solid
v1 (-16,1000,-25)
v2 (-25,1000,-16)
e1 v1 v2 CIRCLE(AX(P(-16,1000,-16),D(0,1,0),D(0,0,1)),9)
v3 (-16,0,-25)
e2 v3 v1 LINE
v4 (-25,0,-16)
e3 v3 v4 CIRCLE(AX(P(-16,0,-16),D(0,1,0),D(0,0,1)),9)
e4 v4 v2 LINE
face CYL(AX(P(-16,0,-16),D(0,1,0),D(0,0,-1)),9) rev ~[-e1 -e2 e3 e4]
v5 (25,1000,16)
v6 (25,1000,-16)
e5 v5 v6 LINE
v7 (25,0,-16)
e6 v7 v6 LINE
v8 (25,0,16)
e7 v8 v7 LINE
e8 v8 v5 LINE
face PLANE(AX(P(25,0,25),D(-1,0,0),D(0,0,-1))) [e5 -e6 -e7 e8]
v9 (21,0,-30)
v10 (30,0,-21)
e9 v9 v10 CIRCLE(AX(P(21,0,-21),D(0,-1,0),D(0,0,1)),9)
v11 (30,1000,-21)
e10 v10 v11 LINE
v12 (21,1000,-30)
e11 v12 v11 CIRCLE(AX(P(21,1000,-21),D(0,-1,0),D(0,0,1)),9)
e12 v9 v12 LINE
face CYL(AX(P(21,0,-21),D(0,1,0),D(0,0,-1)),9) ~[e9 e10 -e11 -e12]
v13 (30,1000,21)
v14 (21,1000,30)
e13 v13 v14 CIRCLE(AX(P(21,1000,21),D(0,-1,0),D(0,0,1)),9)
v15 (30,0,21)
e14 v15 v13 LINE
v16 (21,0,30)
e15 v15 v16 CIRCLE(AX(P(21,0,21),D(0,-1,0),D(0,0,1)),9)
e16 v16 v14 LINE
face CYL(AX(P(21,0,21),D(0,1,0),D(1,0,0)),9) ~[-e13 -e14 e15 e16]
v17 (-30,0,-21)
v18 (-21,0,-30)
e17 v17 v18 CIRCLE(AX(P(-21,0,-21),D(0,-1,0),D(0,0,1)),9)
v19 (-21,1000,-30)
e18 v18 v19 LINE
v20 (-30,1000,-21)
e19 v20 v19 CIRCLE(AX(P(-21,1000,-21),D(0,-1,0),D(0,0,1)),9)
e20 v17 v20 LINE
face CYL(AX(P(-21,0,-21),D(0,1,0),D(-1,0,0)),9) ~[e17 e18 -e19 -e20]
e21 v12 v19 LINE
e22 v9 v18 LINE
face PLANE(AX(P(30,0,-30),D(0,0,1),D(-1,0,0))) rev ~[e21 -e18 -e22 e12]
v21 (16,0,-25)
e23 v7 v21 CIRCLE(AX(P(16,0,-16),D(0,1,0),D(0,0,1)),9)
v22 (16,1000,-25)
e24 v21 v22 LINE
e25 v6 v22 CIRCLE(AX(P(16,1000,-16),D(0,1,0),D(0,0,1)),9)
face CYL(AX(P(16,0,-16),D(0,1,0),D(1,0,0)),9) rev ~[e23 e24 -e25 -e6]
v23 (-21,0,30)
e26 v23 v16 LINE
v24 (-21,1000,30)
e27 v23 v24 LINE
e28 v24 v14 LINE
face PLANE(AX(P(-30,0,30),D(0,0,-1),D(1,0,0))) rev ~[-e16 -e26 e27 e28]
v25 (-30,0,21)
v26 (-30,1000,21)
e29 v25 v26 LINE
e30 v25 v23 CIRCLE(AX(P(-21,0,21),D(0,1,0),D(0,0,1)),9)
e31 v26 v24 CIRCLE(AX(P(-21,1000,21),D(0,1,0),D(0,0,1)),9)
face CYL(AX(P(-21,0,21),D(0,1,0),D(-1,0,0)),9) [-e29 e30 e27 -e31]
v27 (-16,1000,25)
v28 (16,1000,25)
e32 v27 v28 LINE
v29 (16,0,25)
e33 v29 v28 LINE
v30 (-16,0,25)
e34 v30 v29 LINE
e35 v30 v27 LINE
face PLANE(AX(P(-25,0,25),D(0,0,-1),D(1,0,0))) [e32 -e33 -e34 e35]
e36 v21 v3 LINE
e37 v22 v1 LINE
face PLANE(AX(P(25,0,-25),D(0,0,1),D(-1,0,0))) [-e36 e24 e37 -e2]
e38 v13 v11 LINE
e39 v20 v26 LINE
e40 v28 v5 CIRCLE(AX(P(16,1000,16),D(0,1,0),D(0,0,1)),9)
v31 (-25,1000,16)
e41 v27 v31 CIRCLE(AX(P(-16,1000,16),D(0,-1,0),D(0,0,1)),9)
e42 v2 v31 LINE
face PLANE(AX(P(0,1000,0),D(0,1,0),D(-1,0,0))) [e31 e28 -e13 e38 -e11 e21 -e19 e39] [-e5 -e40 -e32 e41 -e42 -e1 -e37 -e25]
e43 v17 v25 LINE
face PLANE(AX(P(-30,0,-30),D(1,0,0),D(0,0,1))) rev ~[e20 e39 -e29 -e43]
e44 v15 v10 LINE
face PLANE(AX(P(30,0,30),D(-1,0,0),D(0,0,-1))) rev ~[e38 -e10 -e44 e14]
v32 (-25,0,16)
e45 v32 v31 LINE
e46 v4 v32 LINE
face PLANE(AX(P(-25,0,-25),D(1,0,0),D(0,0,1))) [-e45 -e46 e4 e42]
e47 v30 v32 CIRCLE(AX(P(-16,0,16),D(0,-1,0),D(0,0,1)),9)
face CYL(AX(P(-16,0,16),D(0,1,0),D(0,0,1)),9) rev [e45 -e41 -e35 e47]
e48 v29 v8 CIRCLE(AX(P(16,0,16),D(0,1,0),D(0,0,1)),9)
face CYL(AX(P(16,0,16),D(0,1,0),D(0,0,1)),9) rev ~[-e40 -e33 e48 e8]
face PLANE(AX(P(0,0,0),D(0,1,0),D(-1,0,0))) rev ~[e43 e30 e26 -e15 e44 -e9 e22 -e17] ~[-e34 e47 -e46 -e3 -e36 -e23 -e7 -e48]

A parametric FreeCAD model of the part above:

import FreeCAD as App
import Part
import Sketcher


def edges_at(feature, points):
    """Names of the edges that pass closest to the given points."""
    edges = feature.Shape.Edges
    near = lambda p: min(range(len(edges)), key=lambda i: edges[i].distToShape(Part.Vertex(*p))[0])
    return sorted({f"Edge{near(p) + 1}" for p in points})

doc = App.newDocument("Part")
body = doc.addObject("PartDesign::Body", "Body")

# Sketch on XZ plane
sketch1 = doc.addObject("Sketcher::SketchObject", "Sketch")
body.addObject(sketch1)
sketch1.AttachmentSupport = (doc.XZ_Plane, [""])
sketch1.MapMode = "FlatFace"
sketch1.addGeometry([
    Part.LineSegment(App.Vector(-30, -30, 0), App.Vector(-30, 30, 0)),  # 0
    Part.LineSegment(App.Vector(-30, 30, 0), App.Vector(30, 30, 0)),  # 1
    Part.LineSegment(App.Vector(30, 30, 0), App.Vector(30, -30, 0)),  # 2
    Part.LineSegment(App.Vector(30, -30, 0), App.Vector(-30, -30, 0)),  # 3
    Part.LineSegment(App.Vector(25, 25, 0), App.Vector(-25, 25, 0)),  # 4
    Part.LineSegment(App.Vector(-25, 25, 0), App.Vector(-25, -25, 0)),  # 5
    Part.LineSegment(App.Vector(-25, -25, 0), App.Vector(25, -25, 0)),  # 6
    Part.LineSegment(App.Vector(25, -25, 0), App.Vector(25, 25, 0)),  # 7
], False)
sketch1.addConstraint([
    Sketcher.Constraint("Coincident", 0, 2, 1, 1),
    Sketcher.Constraint("Coincident", 1, 2, 2, 1),
    Sketcher.Constraint("Coincident", 2, 2, 3, 1),
    Sketcher.Constraint("Coincident", 3, 2, 0, 1),
    Sketcher.Constraint("Coincident", 4, 2, 5, 1),
    Sketcher.Constraint("Coincident", 5, 2, 6, 1),
    Sketcher.Constraint("Coincident", 6, 2, 7, 1),
    Sketcher.Constraint("Coincident", 7, 2, 4, 1),
    Sketcher.Constraint("Vertical", 0),
    Sketcher.Constraint("Horizontal", 1),
    Sketcher.Constraint("Vertical", 2),
    Sketcher.Constraint("Horizontal", 3),
    Sketcher.Constraint("Horizontal", 4),
    Sketcher.Constraint("Vertical", 5),
    Sketcher.Constraint("Horizontal", 6),
    Sketcher.Constraint("Vertical", 7),
    Sketcher.Constraint("Symmetric", 0, 2, 2, 2, -1, 1),
    Sketcher.Constraint("Symmetric", 4, 2, 6, 2, -1, 1),
    Sketcher.Constraint("Equal", 3, 0),
    Sketcher.Constraint("Equal", 6, 5),
    Sketcher.Constraint("DistanceX", 1, 1, 1, 2, 60.0),
    Sketcher.Constraint("DistanceX", 0, 2, 4, 2, 5.0),
])
pad1 = doc.addObject("PartDesign::Pad", "Pad")
body.addObject(pad1)
pad1.Profile = sketch1
pad1.Length = 1000
pad1.Reversed = True
doc.recompute()

fillet = doc.addObject("PartDesign::Fillet", "Fillet")
body.addObject(fillet)
fillet.Base = (pad1, edges_at(pad1, [
    (30, 500, 30),
    (30, 500, -30),
    (-30, 500, 30),
    (-25, 500, -25),
    (-30, 500, -30),
    (-25, 500, 25),
    (25, 500, 25),
    (25, 500, -25),
]))
fillet.Radius = 9

doc.recompute()
